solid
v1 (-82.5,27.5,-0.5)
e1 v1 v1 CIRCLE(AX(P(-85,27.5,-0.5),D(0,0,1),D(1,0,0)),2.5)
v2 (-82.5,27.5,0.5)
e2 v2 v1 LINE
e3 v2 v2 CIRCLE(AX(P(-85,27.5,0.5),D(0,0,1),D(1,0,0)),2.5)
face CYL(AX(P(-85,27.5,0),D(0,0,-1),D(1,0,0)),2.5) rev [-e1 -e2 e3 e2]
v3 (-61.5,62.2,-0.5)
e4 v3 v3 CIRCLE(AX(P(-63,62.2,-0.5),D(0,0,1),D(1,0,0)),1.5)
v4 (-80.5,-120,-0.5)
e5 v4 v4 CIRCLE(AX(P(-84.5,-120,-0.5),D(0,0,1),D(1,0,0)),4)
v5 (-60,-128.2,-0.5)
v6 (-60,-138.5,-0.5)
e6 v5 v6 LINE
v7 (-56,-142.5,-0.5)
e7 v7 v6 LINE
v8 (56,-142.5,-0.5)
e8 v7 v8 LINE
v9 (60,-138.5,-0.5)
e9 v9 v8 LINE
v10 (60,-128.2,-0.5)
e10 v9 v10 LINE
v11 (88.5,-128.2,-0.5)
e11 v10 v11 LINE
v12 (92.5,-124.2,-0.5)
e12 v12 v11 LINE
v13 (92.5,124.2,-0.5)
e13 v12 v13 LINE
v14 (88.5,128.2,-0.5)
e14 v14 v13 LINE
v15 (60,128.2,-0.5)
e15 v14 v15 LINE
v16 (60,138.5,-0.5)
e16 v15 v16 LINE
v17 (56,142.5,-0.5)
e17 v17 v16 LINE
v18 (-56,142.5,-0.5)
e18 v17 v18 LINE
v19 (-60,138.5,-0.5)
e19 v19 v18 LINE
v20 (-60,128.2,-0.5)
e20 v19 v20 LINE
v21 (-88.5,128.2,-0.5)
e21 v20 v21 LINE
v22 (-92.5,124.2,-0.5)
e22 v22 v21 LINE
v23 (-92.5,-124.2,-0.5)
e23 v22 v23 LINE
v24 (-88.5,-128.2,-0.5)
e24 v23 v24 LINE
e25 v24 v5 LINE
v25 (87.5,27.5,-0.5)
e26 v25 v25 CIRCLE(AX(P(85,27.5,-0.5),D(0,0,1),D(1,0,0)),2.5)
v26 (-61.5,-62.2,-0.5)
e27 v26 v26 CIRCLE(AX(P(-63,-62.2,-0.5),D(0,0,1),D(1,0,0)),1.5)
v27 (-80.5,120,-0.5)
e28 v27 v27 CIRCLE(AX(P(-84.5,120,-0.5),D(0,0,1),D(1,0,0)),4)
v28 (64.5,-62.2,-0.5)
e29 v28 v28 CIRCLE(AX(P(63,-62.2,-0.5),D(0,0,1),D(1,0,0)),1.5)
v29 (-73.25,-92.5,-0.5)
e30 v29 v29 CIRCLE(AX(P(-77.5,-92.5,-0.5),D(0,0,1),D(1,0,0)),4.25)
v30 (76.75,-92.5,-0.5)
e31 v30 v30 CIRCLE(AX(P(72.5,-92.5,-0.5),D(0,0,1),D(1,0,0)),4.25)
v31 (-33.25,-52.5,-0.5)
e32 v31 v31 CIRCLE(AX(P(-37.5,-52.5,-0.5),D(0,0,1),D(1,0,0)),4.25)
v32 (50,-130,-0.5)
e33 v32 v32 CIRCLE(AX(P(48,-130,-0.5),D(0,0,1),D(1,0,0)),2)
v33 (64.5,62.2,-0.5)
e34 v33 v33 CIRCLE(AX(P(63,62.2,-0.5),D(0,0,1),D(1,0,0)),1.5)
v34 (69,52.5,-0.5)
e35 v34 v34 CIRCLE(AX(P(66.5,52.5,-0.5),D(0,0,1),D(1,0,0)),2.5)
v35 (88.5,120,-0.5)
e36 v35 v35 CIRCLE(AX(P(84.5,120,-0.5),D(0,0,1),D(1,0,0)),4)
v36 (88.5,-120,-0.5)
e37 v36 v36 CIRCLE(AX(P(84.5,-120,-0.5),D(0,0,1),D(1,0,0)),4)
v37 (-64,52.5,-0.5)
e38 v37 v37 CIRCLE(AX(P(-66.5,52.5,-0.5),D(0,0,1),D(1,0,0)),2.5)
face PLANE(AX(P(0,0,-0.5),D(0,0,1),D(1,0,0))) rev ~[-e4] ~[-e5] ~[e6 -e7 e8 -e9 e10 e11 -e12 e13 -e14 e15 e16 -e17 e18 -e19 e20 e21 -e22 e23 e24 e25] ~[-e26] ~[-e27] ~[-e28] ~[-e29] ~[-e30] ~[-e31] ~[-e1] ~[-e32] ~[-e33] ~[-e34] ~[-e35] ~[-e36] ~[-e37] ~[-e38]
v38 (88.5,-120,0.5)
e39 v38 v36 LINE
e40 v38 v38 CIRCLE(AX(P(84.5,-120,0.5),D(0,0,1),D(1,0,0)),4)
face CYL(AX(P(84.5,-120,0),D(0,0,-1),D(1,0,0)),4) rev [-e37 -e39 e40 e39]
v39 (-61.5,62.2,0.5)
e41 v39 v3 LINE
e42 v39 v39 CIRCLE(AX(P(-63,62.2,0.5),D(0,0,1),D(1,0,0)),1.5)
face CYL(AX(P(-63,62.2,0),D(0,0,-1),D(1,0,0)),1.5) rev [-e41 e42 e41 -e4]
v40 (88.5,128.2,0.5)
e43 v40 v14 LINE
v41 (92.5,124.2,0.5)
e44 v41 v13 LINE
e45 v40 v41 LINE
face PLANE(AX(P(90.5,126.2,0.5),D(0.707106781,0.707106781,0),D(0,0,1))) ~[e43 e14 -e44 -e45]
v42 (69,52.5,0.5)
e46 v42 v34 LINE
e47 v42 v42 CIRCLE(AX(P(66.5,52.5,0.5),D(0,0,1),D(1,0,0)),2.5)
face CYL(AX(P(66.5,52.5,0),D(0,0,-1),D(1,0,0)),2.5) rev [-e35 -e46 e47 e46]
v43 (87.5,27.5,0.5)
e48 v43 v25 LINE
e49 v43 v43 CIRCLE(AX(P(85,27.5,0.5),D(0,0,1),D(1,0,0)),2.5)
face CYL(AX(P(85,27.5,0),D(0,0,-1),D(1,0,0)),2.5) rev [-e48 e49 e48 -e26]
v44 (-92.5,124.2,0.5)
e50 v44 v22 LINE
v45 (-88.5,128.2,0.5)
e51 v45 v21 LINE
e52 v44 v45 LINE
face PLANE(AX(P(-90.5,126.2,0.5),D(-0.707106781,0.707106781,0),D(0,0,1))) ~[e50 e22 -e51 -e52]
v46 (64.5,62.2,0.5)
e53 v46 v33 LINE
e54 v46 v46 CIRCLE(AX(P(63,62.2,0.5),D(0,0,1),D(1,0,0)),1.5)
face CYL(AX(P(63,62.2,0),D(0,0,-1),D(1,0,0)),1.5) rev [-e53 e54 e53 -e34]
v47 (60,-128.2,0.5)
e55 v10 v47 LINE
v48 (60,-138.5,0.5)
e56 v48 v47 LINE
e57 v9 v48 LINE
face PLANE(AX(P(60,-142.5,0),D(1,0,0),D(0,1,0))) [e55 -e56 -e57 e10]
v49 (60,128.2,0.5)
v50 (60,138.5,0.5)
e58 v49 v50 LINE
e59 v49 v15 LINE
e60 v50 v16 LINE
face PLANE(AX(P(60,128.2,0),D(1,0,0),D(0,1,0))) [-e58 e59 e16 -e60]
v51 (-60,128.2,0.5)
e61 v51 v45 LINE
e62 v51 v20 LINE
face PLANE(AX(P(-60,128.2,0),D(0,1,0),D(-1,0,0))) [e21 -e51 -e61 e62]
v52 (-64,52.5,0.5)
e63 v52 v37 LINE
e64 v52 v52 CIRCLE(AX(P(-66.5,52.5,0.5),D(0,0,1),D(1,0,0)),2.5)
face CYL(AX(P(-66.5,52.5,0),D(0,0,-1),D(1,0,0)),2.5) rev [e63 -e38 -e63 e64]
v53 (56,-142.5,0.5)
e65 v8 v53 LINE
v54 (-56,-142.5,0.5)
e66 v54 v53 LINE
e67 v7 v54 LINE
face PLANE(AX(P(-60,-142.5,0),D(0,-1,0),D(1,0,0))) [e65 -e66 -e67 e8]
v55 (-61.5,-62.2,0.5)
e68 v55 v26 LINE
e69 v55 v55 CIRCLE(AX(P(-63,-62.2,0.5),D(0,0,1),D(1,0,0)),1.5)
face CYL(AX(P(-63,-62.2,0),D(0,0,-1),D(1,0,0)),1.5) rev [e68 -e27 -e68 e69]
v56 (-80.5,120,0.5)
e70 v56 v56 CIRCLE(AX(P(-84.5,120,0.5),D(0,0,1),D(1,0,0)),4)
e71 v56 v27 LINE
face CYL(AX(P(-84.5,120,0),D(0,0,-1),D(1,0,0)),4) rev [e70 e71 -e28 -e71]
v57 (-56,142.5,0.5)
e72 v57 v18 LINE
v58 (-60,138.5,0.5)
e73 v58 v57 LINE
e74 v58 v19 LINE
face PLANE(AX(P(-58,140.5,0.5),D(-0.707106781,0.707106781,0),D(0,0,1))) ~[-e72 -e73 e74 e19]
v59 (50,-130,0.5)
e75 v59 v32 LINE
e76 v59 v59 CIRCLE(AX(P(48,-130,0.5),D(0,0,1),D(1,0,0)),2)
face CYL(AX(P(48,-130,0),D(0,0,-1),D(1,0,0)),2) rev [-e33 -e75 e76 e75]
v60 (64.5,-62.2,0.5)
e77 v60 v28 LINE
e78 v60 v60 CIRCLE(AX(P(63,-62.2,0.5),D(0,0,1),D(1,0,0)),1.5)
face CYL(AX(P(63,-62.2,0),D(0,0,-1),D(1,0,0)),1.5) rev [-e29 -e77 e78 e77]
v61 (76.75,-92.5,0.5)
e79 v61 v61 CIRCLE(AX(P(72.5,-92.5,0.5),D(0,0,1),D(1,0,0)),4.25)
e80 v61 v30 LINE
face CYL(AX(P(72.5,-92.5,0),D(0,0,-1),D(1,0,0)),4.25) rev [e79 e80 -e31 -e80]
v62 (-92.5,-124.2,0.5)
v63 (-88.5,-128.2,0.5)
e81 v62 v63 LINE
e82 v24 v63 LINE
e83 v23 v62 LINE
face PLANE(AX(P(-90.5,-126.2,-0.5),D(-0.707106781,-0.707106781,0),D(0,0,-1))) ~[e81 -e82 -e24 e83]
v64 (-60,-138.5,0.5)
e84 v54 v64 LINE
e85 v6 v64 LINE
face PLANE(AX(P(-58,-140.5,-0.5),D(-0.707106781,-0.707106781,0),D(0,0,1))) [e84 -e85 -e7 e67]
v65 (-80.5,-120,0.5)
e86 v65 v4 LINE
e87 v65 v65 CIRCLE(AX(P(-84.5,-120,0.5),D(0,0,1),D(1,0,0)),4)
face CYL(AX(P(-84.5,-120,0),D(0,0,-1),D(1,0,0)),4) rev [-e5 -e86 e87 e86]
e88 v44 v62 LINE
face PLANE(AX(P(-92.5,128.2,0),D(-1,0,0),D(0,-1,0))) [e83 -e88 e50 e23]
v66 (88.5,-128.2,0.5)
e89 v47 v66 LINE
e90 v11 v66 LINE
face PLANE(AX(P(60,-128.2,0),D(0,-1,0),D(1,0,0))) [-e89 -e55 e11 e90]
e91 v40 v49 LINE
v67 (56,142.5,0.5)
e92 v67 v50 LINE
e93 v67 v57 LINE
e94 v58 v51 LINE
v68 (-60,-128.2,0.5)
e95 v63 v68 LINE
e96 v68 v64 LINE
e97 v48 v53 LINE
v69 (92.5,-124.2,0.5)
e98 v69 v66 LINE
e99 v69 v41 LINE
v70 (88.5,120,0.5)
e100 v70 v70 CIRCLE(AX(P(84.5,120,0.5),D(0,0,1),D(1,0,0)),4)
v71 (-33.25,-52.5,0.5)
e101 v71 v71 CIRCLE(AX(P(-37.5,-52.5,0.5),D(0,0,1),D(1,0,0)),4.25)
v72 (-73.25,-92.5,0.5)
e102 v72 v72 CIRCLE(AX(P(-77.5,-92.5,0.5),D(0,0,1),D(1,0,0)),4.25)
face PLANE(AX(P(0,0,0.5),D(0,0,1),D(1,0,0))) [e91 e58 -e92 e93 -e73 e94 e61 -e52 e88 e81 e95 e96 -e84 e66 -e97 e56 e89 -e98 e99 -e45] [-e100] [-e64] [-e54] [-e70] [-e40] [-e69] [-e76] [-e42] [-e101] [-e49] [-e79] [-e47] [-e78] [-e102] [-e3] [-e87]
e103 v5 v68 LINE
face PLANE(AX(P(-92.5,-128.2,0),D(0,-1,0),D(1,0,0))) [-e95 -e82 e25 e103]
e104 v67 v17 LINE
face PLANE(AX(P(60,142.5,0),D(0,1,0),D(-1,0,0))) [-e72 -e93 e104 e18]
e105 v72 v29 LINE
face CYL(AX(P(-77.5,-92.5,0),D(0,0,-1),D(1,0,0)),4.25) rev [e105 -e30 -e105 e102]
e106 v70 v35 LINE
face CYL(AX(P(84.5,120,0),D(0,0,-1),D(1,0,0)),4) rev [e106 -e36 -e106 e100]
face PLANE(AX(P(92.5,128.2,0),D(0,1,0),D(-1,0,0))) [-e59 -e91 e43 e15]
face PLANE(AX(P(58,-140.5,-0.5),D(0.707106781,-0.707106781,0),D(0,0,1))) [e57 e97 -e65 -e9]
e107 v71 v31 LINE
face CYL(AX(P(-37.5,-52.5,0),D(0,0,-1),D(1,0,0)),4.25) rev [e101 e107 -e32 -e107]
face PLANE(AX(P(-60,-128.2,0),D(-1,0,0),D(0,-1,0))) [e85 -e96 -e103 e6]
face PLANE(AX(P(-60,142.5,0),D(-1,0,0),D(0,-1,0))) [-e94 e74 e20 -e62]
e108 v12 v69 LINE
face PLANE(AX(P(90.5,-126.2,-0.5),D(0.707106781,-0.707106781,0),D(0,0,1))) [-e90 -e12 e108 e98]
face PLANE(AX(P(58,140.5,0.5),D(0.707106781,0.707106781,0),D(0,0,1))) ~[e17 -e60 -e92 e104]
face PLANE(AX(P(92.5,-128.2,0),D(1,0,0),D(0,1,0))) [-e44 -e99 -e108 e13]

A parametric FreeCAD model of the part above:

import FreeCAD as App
import Part
import Sketcher
Q = App.Units.Quantity


def edges_at(feature, points):
    """Names of the edges that pass closest to the given points."""
    edges = feature.Shape.Edges
    near = lambda p: min(range(len(edges)), key=lambda i: edges[i].distToShape(Part.Vertex(*p))[0])
    return sorted({f"Edge{near(p) + 1}" for p in points})


def add_polygon(sketch, points):
    """Adds a closed chain of lines whose ends are joined by coincident constraints."""
    first, n = sketch.GeometryCount, len(points)
    for a, b in zip(points, points[1:] + points[:1]):
        sketch.addGeometry(Part.LineSegment(App.Vector(*a, 0), App.Vector(*b, 0)), False)
    for i in range(n):
        sketch.addConstraint(Sketcher.Constraint("Coincident", first + i, 2, first + (i + 1) % n, 1))

doc = App.newDocument("Part")
body = doc.addObject("PartDesign::Body", "Body")

# Sketch on XY plane
sketch1 = body.newObject("Sketcher::SketchObject", "Sketch")
sketch1.AttachmentSupport = (doc.getObject("XY_Plane"), [""])
sketch1.MapMode = "FlatFace"
add_polygon(sketch1, [(-92.5, 128.2), (-92.5, -128.2), (-60, -128.2), (-60, -142.5), (60, -142.5), (60, -128.2), (92.5, -128.2), (92.5, 128.2), (60, 128.2), (60, 142.5), (-60, 142.5), (-60, 128.2)])  # lines 0-11
sketch1.addGeometry(Part.Circle(App.Vector(-84.5, -120, 0), App.Vector(0, 0, 1), 4), False)  # 12
sketch1.addGeometry(Part.Circle(App.Vector(-77.5, -92.5, 0), App.Vector(0, 0, 1), 4.2), False)  # 13
sketch1.addGeometry(Part.Circle(App.Vector(-63, -62.2, 0), App.Vector(0, 0, 1), 1.5), False)  # 14
sketch1.addGeometry(Part.Circle(App.Vector(-37.5, -52.5, 0), App.Vector(0, 0, 1), 4.2), False)  # 15
sketch1.addGeometry(Part.Circle(App.Vector(48, -130, 0), App.Vector(0, 0, 1), 2), False)  # 16
sketch1.addGeometry(Part.Circle(App.Vector(84.5, -120, 0), App.Vector(0, 0, 1), 4), False)  # 17
sketch1.addGeometry(Part.Circle(App.Vector(72.5, -92.5, 0), App.Vector(0, 0, 1), 4.2), False)  # 18
sketch1.addGeometry(Part.Circle(App.Vector(63, -62.2, 0), App.Vector(0, 0, 1), 1.5), False)  # 19
sketch1.addGeometry(Part.Circle(App.Vector(-85, 27.5, 0), App.Vector(0, 0, 1), 2.5), False)  # 20
sketch1.addGeometry(Part.Circle(App.Vector(-66.5, 52.5, 0), App.Vector(0, 0, 1), 2.5), False)  # 21
sketch1.addGeometry(Part.Circle(App.Vector(-63, 62.2, 0), App.Vector(0, 0, 1), 1.5), False)  # 22
sketch1.addGeometry(Part.Circle(App.Vector(-84.5, 120, 0), App.Vector(0, 0, 1), 4), False)  # 23
sketch1.addGeometry(Part.Circle(App.Vector(85, 27.5, 0), App.Vector(0, 0, 1), 2.5), False)  # 24
sketch1.addGeometry(Part.Circle(App.Vector(66.5, 52.5, 0), App.Vector(0, 0, 1), 2.5), False)  # 25
sketch1.addGeometry(Part.Circle(App.Vector(63, 62.2, 0), App.Vector(0, 0, 1), 1.5), False)  # 26
sketch1.addGeometry(Part.Circle(App.Vector(84.5, 120, 0), App.Vector(0, 0, 1), 4), False)  # 27
sketch1.addConstraint([
    Sketcher.Constraint("Vertical", 0),
    Sketcher.Constraint("Horizontal", 1),
    Sketcher.Constraint("Vertical", 2),
    Sketcher.Constraint("Horizontal", 3),
    Sketcher.Constraint("Vertical", 4),
    Sketcher.Constraint("Horizontal", 5),
    Sketcher.Constraint("Vertical", 6),
    Sketcher.Constraint("Horizontal", 7),
    Sketcher.Constraint("Vertical", 8),
    Sketcher.Constraint("Horizontal", 9),
    Sketcher.Constraint("Vertical", 10),
    Sketcher.Constraint("Horizontal", 11),
    Sketcher.Constraint("Equal", 13, 15),
    Sketcher.Constraint("Equal", 12, 17),
    Sketcher.Constraint("Equal", 15, 18),
    Sketcher.Constraint("Equal", 14, 19),
    Sketcher.Constraint("Equal", 20, 21),
    Sketcher.Constraint("Equal", 19, 22),
    Sketcher.Constraint("Equal", 17, 23),
    Sketcher.Constraint("Equal", 21, 24),
    Sketcher.Constraint("Equal", 24, 25),
    Sketcher.Constraint("Equal", 22, 26),
    Sketcher.Constraint("Equal", 23, 27),
    Sketcher.Constraint("Symmetric", 19, 3, 22, 3, -1, 1),
    Sketcher.Constraint("Symmetric", 17, 3, 23, 3, -1, 1),
    Sketcher.Constraint("Symmetric", 14, 3, 26, 3, -1, 1),
    Sketcher.Constraint("Symmetric", 12, 3, 27, 3, -1, 1),
    Sketcher.Constraint("Symmetric", 0, 2, 6, 2, -1, 1),
    Sketcher.Constraint("Symmetric", 2, 2, 8, 2, -1, 1),
    Sketcher.Constraint("Symmetric", 4, 2, 10, 2, -1, 1),
    Sketcher.Constraint("Symmetric", 12, 3, 17, 3, -2),
    Sketcher.Constraint("Symmetric", 14, 3, 19, 3, -2),
    Sketcher.Constraint("Symmetric", 20, 3, 24, 3, -2),
    Sketcher.Constraint("Symmetric", 21, 3, 25, 3, -2),
    Sketcher.Constraint("Symmetric", 1, 2, 4, 2, -2),
    Sketcher.Constraint("Horizontal", 13, 3, 18, 3),
    Sketcher.Constraint("Diameter", 12, Q("8 mm")),
    Sketcher.Constraint("Diameter", 14, Q("3 mm")),
    Sketcher.Constraint("Diameter", 16, Q("4 mm")),
    Sketcher.Constraint("Diameter", 20, Q("5 mm")),
    Sketcher.Constraint("Diameter", 13, Q("8.5 mm")),
    Sketcher.Constraint("DistanceX", 3, 1, 3, 2, Q("120 mm")),
    Sketcher.Constraint("DistanceX", 1, 1, 1, 2, Q("32.5 mm")),
    Sketcher.Constraint("DistanceY", 0, 2, 0, 1, Q("256.4 mm")),
    Sketcher.Constraint("DistanceY", 2, 2, 2, 1, Q("14.3 mm")),
    Sketcher.Constraint("DistanceY", 12, 3, -1, 1, Q("120 mm")),
    Sketcher.Constraint("DistanceX", 14, 3, -1, 1, Q("63 mm")),
    Sketcher.Constraint("DistanceX", -1, 1, 16, 3, Q("48 mm")),
    Sketcher.Constraint("DistanceY", 16, 3, -1, 1, Q("130 mm")),
    Sketcher.Constraint("DistanceX", 20, 3, -1, 1, Q("85 mm")),
    Sketcher.Constraint("DistanceX", 12, 3, 13, 3, Q("7 mm")),
    Sketcher.Constraint("DistanceX", 13, 3, 15, 3, Q("40 mm")),
    Sketcher.Constraint("DistanceY", 13, 3, 15, 3, Q("40 mm")),
    Sketcher.Constraint("DistanceX", 15, 3, 17, 3, Q("122 mm")),
    Sketcher.Constraint("DistanceX", 18, 3, 17, 3, Q("12 mm")),
    Sketcher.Constraint("DistanceY", 15, 3, 20, 3, Q("80 mm")),
    Sketcher.Constraint("DistanceY", 20, 3, 21, 3, Q("25 mm")),
    Sketcher.Constraint("DistanceX", 21, 3, 15, 3, Q("29 mm")),
    Sketcher.Constraint("DistanceY", 0, 2, 14, 3, Q("66 mm")),
    Sketcher.Constraint("DistanceY", 2, 2, 13, 3, Q("50 mm")),
])
pad1 = body.newObject("PartDesign::Pad", "Pad")
pad1.Profile = sketch1
pad1.Length = 1
pad1.Midplane = True
doc.recompute()

chamfer = body.newObject("PartDesign::Chamfer", "Chamfer")
chamfer.Base = (pad1, edges_at(pad1, [
    (-92.5, 128.2, 0),
    (-60, 142.5, 0),
    (60, 142.5, 0),
    (92.5, 128.2, 0),
    (92.5, -128.2, 0),
    (60, -142.5, 0),
    (-60, -142.5, 0),
    (-92.5, -128.2, 0),
]))
chamfer.Size = 4

doc.recompute()
